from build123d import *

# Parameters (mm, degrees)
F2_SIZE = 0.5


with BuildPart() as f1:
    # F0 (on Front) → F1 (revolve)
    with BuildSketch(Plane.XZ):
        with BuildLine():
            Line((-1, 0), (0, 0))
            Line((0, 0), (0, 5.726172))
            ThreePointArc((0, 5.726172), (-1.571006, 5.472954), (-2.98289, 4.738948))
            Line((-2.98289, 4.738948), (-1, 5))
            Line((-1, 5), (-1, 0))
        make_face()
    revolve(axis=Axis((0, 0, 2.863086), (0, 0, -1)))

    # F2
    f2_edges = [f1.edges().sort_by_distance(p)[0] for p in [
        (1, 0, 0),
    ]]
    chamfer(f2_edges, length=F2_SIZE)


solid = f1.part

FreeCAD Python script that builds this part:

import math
import FreeCAD as App
import Part
import Sketcher

V = App.Vector
Q = App.Units.Quantity


def edges_at(feature, points):
    """Names of the edges that pass closest to the given points."""
    edges = feature.Shape.Edges
    near = lambda p: min(range(len(edges)), key=lambda i: edges[i].distToShape(Part.Vertex(*p))[0])
    return sorted({f"Edge{near(p) + 1}" for p in points})

doc = App.newDocument("Part")
body = doc.addObject("PartDesign::Body", "Body")

# Sketch on XZ plane
sketch1 = doc.addObject("Sketcher::SketchObject", "Sketch")
body.addObject(sketch1)
sketch1.AttachmentSupport = (doc.XZ_Plane, [""])
sketch1.MapMode = "FlatFace"
sketch1.addGeometry(Part.LineSegment(V(-1, 0, 0), V(0, 0, 0)), False)
sketch1.addGeometry(Part.LineSegment(V(0, 0, 0), V(0, 5.7, 0)), False)
sketch1.addGeometry(Part.ArcOfCircle(Part.Circle(V(0, 0.7, 0), V(0, 0, 1), 5), math.radians(90), math.radians(127)), False)
sketch1.addGeometry(Part.LineSegment(V(-3, 4.7, 0), V(-1, 5, 0)), False)
sketch1.addGeometry(Part.LineSegment(V(-1, 5, 0), V(-1, 0, 0)), False)
sketch1.addConstraint(Sketcher.Constraint("Coincident", 0, 2, 1, 1))
sketch1.addConstraint(Sketcher.Constraint("Coincident", 1, 2, 2, 1))
sketch1.addConstraint(Sketcher.Constraint("Coincident", 2, 2, 3, 1))
sketch1.addConstraint(Sketcher.Constraint("Coincident", 3, 2, 4, 1))
sketch1.addConstraint(Sketcher.Constraint("Coincident", 4, 2, 0, 1))
sketch1.addConstraint(Sketcher.Constraint("Horizontal", 0))
sketch1.addConstraint(Sketcher.Constraint("Vertical", 1))
sketch1.addConstraint(Sketcher.Constraint("Vertical", 4))
sketch1.addConstraint(Sketcher.Constraint("Coincident", 0, 2, -1, 1))
sketch1.addConstraint(Sketcher.Constraint("PointOnObject", 2, 3, -2))
sketch1.addConstraint(Sketcher.Constraint("DistanceX", 0, 1, 0, 2, Q("1 mm")))
sketch1.addConstraint(Sketcher.Constraint("DistanceY", 4, 2, 4, 1, Q("5 mm")))
sketch1.addConstraint(Sketcher.Constraint("Distance", 3, Q("2 mm")))
sketch1.addConstraint(Sketcher.Constraint("Angle", 3, Q("7.499988 deg")))
sketch1.addConstraint(Sketcher.Constraint("Radius", 2, Q("5.000005 mm")))
revolution = doc.addObject("PartDesign::Revolution", "Revolution")
body.addObject(revolution)
revolution.Profile = sketch1
revolution.ReferenceAxis = (sketch1, ["V_Axis"])
revolution.Angle = 360
doc.recompute()

chamfer = doc.addObject("PartDesign::Chamfer", "Chamfer")
body.addObject(chamfer)
chamfer.Base = (revolution, edges_at(revolution, [(1, 0, 0)]))
chamfer.Size = 0.5

doc.recompute()
